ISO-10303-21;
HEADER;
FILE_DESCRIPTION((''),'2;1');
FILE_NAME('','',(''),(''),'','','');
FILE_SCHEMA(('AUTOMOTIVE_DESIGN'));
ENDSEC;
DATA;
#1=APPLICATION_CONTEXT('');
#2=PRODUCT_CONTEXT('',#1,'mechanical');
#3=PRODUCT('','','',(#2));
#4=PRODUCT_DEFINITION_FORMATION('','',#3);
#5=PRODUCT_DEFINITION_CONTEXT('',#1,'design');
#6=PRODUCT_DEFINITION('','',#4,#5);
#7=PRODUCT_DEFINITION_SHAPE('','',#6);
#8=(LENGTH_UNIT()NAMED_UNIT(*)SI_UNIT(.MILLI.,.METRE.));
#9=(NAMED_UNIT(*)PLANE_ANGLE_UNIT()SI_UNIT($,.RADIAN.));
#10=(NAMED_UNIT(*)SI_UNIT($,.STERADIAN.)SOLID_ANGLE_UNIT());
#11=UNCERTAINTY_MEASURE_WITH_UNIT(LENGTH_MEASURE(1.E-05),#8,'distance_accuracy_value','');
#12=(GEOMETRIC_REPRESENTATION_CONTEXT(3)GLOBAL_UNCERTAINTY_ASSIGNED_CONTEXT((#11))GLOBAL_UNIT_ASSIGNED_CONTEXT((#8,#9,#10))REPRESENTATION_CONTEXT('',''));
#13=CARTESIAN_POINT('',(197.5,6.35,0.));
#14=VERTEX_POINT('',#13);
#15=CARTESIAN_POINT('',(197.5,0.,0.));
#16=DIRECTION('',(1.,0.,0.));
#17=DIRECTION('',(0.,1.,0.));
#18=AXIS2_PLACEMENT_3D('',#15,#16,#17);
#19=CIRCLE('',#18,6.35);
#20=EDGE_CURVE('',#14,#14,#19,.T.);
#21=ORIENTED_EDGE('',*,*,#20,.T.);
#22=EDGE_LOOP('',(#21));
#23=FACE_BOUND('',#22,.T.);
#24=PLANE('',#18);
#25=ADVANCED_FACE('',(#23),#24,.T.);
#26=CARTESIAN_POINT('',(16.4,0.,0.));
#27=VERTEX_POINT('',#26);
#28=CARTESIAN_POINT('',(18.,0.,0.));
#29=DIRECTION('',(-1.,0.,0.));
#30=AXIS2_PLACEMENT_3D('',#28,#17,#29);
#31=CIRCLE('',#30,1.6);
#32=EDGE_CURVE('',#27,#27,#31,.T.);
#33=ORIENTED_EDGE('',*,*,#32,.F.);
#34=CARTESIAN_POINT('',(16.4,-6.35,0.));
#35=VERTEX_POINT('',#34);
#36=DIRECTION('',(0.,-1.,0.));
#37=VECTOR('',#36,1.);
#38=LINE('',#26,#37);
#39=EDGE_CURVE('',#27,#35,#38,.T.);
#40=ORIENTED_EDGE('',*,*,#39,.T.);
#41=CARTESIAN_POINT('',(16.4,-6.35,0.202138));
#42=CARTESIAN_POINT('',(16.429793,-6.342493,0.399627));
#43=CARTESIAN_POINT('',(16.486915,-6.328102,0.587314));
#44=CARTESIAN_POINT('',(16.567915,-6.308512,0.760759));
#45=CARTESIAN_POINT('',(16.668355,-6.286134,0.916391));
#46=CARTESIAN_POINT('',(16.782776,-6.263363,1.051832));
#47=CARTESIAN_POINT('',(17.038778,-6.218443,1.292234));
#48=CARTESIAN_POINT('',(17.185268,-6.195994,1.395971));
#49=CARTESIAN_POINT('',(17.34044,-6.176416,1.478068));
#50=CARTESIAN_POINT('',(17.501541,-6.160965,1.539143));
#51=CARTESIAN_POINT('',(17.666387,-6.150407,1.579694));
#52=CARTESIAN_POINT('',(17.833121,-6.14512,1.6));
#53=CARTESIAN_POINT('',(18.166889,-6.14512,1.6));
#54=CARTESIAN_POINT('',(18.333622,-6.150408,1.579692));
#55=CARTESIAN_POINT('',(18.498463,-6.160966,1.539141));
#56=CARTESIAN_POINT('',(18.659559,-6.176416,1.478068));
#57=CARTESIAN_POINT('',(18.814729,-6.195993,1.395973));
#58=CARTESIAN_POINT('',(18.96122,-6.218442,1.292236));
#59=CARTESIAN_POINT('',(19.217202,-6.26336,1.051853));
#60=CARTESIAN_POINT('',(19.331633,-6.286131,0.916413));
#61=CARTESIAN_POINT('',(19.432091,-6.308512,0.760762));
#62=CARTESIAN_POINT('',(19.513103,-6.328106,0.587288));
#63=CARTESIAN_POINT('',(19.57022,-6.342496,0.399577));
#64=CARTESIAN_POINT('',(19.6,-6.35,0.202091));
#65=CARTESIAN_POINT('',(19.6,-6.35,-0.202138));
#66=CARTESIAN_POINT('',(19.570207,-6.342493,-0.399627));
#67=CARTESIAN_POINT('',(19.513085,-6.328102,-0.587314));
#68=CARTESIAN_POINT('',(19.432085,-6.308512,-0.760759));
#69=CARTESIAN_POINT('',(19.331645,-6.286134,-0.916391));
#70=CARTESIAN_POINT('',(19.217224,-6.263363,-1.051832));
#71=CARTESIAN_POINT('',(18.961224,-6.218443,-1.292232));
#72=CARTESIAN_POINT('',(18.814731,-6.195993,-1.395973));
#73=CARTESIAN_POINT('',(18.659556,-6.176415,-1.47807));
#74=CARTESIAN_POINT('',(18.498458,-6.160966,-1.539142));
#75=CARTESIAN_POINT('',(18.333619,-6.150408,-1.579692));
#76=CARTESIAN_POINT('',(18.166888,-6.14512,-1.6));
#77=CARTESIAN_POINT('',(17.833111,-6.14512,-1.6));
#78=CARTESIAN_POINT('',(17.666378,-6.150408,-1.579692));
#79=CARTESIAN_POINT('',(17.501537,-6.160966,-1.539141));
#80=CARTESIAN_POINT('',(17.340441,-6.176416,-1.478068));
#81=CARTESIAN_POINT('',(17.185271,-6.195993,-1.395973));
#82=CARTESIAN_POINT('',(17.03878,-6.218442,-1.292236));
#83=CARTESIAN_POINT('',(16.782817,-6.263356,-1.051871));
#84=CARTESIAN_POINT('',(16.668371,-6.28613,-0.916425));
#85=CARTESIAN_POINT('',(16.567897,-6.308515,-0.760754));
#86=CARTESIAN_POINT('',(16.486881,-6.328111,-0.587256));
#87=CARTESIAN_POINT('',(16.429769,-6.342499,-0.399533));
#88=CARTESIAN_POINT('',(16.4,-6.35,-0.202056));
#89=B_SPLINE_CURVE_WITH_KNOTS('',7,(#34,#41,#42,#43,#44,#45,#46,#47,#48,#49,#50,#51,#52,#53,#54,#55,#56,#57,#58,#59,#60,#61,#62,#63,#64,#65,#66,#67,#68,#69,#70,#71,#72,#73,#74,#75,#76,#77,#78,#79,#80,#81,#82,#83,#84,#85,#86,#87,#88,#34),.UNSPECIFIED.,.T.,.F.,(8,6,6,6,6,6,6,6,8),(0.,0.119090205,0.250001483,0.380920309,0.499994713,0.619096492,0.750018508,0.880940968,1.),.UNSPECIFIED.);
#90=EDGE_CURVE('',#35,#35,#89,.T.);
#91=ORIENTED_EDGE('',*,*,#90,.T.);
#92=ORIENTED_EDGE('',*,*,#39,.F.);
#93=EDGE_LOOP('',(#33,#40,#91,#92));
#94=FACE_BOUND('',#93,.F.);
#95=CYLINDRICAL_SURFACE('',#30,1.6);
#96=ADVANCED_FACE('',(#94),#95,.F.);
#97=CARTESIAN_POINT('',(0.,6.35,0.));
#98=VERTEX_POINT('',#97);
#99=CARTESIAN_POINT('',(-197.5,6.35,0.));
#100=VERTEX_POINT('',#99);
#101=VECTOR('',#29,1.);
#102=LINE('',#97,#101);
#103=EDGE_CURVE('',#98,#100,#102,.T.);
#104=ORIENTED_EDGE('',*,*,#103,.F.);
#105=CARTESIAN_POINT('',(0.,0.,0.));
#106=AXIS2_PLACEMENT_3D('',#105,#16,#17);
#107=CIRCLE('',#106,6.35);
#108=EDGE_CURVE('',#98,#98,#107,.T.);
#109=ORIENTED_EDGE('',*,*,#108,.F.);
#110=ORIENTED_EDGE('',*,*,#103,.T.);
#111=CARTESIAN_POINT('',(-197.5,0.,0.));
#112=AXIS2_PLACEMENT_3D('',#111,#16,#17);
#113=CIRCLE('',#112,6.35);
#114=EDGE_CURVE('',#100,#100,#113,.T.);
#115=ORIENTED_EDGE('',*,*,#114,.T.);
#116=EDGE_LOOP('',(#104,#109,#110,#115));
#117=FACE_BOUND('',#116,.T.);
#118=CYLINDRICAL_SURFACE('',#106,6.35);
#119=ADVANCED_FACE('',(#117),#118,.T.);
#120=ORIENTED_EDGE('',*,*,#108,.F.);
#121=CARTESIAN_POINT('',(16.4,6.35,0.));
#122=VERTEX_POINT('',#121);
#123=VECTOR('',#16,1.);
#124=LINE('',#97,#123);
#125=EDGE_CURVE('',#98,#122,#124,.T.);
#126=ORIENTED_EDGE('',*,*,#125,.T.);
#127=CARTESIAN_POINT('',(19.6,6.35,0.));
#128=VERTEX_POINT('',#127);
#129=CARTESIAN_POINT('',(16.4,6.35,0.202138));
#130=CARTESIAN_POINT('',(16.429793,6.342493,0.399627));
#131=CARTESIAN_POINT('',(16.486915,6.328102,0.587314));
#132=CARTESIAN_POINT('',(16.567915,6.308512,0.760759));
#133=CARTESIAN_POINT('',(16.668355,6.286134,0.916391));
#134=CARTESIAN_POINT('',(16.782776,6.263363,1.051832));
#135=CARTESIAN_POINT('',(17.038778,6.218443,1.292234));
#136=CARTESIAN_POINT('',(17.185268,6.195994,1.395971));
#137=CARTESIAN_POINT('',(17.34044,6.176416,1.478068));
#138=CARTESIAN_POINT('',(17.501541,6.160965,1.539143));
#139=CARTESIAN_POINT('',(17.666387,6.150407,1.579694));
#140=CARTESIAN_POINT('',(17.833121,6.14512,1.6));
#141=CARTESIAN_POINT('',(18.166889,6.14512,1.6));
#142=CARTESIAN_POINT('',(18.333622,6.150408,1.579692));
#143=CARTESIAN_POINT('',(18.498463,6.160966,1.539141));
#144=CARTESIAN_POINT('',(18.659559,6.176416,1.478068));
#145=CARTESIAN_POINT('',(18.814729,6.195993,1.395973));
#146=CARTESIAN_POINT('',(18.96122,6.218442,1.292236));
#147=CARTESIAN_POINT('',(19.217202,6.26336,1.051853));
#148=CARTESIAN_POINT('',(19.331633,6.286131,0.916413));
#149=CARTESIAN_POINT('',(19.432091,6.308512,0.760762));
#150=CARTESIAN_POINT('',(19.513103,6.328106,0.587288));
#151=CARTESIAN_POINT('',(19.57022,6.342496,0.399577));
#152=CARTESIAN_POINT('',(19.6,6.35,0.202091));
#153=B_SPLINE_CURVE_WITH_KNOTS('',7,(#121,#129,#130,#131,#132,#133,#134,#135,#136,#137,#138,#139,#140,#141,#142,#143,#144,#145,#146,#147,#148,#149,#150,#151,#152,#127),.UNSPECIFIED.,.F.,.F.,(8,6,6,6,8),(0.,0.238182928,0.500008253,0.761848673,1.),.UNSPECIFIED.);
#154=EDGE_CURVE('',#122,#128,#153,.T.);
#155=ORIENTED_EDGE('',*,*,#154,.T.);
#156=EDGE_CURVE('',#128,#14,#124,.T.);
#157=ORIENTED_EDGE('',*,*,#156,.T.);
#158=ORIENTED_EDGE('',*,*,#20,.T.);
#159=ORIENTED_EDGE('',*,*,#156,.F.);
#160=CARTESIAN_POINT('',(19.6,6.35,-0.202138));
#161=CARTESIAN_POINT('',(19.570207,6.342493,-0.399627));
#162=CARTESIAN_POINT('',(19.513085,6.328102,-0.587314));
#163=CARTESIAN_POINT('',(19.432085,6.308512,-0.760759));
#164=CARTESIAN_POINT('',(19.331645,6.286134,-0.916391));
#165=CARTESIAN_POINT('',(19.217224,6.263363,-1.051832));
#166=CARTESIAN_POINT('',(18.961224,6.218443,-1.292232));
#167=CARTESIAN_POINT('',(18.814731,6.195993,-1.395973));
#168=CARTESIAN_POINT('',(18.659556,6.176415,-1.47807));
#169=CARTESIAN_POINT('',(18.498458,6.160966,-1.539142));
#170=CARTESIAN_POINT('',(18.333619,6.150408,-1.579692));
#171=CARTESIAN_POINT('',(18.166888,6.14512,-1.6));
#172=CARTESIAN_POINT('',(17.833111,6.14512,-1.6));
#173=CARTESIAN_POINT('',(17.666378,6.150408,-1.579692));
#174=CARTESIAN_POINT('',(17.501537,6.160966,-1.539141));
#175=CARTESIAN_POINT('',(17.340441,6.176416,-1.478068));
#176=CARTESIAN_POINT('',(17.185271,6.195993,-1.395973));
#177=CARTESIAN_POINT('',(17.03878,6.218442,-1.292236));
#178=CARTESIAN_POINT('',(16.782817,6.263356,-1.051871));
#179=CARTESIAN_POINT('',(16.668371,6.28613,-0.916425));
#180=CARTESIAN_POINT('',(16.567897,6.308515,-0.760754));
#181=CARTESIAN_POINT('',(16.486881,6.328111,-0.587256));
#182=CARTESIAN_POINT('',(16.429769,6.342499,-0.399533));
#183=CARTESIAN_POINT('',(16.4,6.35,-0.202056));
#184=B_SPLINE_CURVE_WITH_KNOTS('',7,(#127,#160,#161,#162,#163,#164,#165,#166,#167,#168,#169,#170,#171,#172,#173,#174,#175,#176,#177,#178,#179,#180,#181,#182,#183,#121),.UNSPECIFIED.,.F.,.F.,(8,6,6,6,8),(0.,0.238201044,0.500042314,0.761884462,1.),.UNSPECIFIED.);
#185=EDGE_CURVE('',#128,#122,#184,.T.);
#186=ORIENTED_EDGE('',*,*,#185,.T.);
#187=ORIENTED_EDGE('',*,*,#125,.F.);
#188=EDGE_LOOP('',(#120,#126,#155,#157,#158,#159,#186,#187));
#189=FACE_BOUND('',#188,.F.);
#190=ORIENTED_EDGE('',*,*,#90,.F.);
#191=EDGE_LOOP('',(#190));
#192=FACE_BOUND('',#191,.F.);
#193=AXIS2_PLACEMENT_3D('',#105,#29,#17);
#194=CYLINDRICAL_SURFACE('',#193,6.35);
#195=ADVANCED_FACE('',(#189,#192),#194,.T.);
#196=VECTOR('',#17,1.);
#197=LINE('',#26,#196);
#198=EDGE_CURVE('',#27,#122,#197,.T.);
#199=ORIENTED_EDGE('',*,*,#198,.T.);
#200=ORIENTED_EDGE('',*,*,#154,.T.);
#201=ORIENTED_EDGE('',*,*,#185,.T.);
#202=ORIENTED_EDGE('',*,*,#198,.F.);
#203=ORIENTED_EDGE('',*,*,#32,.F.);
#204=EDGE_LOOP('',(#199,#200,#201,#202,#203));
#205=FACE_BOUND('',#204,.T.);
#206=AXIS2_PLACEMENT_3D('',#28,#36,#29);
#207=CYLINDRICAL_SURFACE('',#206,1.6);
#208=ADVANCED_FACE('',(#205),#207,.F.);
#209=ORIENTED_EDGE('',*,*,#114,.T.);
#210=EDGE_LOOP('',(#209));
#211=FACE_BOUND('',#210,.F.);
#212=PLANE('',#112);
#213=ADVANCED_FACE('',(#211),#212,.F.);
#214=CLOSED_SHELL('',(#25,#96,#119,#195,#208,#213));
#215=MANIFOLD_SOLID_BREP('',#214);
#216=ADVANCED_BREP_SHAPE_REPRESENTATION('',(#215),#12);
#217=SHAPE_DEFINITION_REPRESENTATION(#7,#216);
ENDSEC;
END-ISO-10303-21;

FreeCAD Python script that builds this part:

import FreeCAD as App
import Part
import Sketcher

V = App.Vector
Q = App.Units.Quantity

doc = App.newDocument("Part")
body = doc.addObject("PartDesign::Body", "Body")

sketch1 = body.newObject("Sketcher::SketchObject", "Sketch")
sketch1.AttachmentSupport = (doc.getObject("YZ_Plane"), [""])
sketch1.MapMode = "FlatFace"
sketch1.addGeometry(Part.Circle(V(0, 0, 0), V(0, 0, 1), 6), False)
sketch1.addConstraint(Sketcher.Constraint("Coincident", 0, 3, -1, 1))
sketch1.addConstraint(Sketcher.Constraint("Diameter", 0, Q("12.7 mm")))
pad1 = body.newObject("PartDesign::Pad", "Pad")
pad1.Profile = sketch1
pad1.Length = 395
pad1.Midplane = True

sketch2 = body.newObject("Sketcher::SketchObject", "Sketch001")
sketch2.AttachmentSupport = (doc.getObject("XZ_Plane"), [""])
sketch2.MapMode = "FlatFace"
sketch2.addGeometry(Part.Circle(V(18, 0, 0), V(0, 0, 1), 1.6), False)
sketch2.addConstraint(Sketcher.Constraint("PointOnObject", 0, 3, -1))
sketch2.addConstraint(Sketcher.Constraint("Diameter", 0, Q("3.2 mm")))
sketch2.addConstraint(Sketcher.Constraint("DistanceX", -1, 1, 0, 3, Q("18 mm")))
pocket1 = body.newObject("PartDesign::Pocket", "Pocket")
pocket1.Profile = sketch2
pocket1.Length = 30
pocket1.Midplane = True

doc.recompute()
